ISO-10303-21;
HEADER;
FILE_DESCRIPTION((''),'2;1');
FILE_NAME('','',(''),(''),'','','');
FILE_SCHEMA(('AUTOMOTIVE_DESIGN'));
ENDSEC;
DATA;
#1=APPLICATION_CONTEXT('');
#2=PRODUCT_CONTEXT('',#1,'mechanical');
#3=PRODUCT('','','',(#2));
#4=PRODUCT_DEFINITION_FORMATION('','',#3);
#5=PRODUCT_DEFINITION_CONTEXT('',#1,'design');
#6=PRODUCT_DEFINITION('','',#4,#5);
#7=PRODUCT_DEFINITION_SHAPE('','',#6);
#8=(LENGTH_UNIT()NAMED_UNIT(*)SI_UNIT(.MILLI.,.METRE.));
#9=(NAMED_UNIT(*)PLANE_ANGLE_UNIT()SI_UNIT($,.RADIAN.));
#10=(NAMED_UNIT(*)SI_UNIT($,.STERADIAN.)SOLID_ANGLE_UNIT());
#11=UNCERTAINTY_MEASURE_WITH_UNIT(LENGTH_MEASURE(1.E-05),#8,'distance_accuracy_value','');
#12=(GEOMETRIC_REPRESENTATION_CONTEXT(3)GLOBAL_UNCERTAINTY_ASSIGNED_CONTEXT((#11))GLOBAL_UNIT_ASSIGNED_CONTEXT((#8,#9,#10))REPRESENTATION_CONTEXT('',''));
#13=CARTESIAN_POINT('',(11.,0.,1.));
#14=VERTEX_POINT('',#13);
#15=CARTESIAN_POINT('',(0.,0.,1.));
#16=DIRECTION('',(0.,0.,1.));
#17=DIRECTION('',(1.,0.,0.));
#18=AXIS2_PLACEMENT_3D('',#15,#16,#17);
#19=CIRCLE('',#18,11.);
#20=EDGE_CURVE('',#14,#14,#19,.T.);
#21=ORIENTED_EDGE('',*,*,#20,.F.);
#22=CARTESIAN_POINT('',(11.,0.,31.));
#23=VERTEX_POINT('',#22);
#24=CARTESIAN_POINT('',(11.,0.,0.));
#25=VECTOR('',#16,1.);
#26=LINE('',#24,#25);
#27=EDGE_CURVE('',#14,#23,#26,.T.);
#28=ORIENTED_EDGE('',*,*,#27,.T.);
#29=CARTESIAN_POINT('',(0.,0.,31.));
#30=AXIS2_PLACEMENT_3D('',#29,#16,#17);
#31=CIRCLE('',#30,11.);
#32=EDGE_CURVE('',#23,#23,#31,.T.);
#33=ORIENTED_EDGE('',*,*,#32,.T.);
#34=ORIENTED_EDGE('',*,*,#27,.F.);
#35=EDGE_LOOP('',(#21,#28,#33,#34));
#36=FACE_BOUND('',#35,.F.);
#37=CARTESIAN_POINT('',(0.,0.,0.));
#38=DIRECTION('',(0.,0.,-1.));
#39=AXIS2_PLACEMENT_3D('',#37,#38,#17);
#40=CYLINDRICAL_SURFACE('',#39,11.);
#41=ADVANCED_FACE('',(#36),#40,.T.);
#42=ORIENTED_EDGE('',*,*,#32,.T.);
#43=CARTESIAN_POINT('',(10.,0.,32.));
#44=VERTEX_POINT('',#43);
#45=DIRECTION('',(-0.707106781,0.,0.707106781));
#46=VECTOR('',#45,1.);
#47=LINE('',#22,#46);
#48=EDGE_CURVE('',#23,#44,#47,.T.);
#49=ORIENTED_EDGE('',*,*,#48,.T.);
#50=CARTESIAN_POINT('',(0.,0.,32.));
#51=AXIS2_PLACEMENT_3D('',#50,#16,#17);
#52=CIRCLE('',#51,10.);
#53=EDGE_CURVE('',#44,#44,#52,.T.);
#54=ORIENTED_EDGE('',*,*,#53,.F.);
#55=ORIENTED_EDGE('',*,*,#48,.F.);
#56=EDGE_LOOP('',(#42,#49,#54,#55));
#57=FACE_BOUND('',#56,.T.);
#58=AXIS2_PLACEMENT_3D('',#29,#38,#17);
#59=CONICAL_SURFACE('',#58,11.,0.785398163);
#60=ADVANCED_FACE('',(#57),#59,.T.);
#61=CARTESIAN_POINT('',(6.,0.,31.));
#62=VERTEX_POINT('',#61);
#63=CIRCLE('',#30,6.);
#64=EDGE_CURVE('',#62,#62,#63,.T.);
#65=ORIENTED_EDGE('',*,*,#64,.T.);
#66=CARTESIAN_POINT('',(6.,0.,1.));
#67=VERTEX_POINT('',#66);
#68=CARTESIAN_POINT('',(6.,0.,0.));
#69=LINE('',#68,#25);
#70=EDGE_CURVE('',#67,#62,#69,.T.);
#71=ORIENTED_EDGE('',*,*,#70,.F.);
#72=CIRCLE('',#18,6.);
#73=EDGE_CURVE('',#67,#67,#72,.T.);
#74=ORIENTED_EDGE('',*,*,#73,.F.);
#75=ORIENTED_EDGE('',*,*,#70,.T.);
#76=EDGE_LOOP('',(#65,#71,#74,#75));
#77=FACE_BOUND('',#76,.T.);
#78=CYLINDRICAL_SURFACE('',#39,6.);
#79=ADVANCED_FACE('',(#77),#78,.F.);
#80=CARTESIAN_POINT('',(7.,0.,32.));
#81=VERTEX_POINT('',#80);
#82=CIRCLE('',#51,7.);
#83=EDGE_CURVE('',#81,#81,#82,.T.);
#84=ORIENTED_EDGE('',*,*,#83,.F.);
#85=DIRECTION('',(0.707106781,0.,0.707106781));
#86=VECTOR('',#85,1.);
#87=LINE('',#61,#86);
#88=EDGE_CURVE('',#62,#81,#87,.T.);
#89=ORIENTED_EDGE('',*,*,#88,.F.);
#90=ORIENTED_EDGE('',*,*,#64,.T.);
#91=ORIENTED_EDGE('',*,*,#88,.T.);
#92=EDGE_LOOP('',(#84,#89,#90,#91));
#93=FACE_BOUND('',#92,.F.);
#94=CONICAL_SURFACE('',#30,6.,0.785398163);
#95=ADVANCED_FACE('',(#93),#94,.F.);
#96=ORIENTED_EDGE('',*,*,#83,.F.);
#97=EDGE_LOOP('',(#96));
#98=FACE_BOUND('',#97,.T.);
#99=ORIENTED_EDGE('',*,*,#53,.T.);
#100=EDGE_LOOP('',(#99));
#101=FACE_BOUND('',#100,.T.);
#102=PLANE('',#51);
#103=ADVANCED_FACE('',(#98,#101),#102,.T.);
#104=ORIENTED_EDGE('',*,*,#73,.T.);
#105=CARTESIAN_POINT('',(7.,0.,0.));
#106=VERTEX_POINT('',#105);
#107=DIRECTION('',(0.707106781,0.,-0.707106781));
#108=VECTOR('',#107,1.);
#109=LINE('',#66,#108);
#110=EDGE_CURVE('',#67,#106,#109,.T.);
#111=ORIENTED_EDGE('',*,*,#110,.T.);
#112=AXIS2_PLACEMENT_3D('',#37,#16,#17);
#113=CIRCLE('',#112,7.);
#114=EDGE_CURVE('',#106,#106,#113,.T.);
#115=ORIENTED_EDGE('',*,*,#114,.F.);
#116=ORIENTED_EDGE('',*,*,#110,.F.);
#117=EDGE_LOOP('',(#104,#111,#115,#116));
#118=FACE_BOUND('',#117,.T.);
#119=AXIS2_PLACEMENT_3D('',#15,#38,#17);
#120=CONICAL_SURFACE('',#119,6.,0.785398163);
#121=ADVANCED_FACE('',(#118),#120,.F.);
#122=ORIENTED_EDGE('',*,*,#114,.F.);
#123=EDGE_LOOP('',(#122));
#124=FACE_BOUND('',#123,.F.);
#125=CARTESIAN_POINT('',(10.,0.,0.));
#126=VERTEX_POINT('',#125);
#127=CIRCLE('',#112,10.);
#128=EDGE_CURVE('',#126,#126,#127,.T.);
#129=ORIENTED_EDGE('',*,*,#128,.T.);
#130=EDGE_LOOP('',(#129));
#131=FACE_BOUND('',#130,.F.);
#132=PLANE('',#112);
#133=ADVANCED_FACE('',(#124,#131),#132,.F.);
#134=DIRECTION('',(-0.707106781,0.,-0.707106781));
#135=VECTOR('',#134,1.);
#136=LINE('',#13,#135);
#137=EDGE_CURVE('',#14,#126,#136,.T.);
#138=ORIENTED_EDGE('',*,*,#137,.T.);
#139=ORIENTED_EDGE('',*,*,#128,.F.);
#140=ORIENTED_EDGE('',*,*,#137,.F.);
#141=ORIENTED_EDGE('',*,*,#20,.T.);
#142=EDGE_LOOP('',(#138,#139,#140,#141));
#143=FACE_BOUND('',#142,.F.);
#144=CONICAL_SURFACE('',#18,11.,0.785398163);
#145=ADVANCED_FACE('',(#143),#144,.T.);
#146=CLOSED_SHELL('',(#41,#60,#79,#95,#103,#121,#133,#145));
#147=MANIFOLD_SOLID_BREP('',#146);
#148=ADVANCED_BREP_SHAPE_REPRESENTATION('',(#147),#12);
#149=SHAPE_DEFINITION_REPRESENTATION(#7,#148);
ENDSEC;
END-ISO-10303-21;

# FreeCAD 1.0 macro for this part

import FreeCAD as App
import Part
import Sketcher


def edges_at(feature, points):
    """Names of the edges that pass closest to the given points."""
    edges = feature.Shape.Edges
    near = lambda p: min(range(len(edges)), key=lambda i: edges[i].distToShape(Part.Vertex(*p))[0])
    return sorted({f"Edge{near(p) + 1}" for p in points})

doc = App.newDocument("Part")
params = doc.addObject("Spreadsheet::Sheet", "Params")
for row, (alias, value) in enumerate([
    ("sketch1_diameter", "22 mm"),
    ("sketch1_diameter2", "12 mm"),
    ("pad1_length", "32 mm"),
    ("chamfer_size", "1 mm"),
], start=1):
    params.set(f"A{row}", alias)
    params.set(f"B{row}", "=" + value)
    params.setAlias(f"B{row}", alias)

body = doc.addObject("PartDesign::Body", "Body")

sketch1 = body.newObject("Sketcher::SketchObject", "Sketch")
sketch1.AttachmentSupport = (doc.getObject("XY_Plane"), [""])
sketch1.MapMode = "FlatFace"
sketch1.addGeometry(Part.Circle(App.Vector(0, 0, 0), App.Vector(0, 0, 1), 11), False)
sketch1.addGeometry(Part.Circle(App.Vector(0, 0, 0), App.Vector(0, 0, 1), 6), False)
sketch1.addConstraint(Sketcher.Constraint("Coincident", 0, 3, -1, 1))
sketch1.addConstraint(Sketcher.Constraint("Coincident", 1, 3, -1, 1))
sketch1.addConstraint(Sketcher.Constraint("Diameter", 0, 22.0))
sketch1.addConstraint(Sketcher.Constraint("Diameter", 1, 12.0))
sketch1.setExpression("Constraints[2]", "Params.sketch1_diameter")
sketch1.setExpression("Constraints[3]", "Params.sketch1_diameter2")
pad1 = body.newObject("PartDesign::Pad", "Pad")
pad1.Profile = sketch1
pad1.setExpression("Length", "Params.pad1_length")
doc.recompute()

chamfer = body.newObject("PartDesign::Chamfer", "Chamfer")
chamfer.Base = (pad1, edges_at(pad1, [
    (-11, 0, 32),
    (-6, 0, 32),
    (-6, 0, 0),
    (-11, 0, 0),
]))
chamfer.setExpression("Size", "Params.chamfer_size")

doc.recompute()
